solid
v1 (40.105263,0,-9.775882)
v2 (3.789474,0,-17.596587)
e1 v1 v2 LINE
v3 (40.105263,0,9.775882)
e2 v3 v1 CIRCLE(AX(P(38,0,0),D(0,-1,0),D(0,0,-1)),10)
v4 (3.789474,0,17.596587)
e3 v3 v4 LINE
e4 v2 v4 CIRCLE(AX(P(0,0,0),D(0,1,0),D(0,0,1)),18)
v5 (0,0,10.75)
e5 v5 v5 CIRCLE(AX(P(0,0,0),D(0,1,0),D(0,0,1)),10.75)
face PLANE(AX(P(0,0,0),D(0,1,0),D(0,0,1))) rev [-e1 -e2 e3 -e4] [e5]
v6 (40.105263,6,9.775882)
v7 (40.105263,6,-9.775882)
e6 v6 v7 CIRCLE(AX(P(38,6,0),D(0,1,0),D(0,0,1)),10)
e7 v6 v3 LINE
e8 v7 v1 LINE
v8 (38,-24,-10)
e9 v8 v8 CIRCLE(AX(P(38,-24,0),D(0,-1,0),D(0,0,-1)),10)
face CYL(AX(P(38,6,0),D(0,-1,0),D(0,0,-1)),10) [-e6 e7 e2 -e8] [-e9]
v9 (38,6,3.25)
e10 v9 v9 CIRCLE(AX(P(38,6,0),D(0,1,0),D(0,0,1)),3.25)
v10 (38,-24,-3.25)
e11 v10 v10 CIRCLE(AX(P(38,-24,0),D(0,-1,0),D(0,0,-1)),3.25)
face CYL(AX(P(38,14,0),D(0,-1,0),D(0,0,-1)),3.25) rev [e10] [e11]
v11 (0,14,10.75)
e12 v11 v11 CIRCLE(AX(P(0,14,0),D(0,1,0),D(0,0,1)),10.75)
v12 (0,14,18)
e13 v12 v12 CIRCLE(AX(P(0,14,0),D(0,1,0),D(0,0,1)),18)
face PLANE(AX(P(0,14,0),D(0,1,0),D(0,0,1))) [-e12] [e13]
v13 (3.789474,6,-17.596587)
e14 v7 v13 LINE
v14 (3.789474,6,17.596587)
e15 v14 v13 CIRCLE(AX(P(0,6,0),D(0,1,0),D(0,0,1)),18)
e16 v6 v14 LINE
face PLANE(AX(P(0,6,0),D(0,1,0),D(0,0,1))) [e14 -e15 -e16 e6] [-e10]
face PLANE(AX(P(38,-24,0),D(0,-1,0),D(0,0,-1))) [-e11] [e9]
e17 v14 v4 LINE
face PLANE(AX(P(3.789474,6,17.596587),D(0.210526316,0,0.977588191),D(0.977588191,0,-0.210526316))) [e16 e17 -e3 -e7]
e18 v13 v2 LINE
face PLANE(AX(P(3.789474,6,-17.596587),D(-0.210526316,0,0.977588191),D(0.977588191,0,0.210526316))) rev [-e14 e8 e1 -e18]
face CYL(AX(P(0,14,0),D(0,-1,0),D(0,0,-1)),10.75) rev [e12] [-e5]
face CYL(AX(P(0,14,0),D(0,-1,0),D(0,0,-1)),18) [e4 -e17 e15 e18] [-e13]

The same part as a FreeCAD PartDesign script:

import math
import FreeCAD as App
import Part
import Sketcher
Q = App.Units.Quantity

doc = App.newDocument("Part")
params = doc.addObject("Spreadsheet::Sheet", "Params")
for row, (alias, value) in enumerate([
    ("sketch1_diameter", "36 mm"),
    ("sketch1_diameter2", "21.5 mm"),
    ("pad1_length", "14 mm"),
    ("sketch2_radius", "10 mm"),
    ("sketch2_radius2", "18 mm"),
    ("pad2_length", "6 mm"),
    ("sketch3_diameter", "20 mm"),
    ("pad3_length", "24 mm"),
    ("sketch4_diameter", "6.5 mm"),
], start=1):
    params.set(f"A{row}", alias)
    params.set(f"B{row}", "=" + value)
    params.setAlias(f"B{row}", alias)

body = doc.addObject("PartDesign::Body", "Body")

# Sketch on XZ plane
sketch1 = body.newObject("Sketcher::SketchObject", "Sketch")
sketch1.AttachmentSupport = (doc.getObject("XZ_Plane"), [""])
sketch1.MapMode = "FlatFace"
sketch1.addGeometry([
    Part.Circle(App.Vector(0, 0, 0), App.Vector(0, 0, 1), 18),
    Part.Circle(App.Vector(0, 0, 0), App.Vector(0, 0, 1), 11),
], False)
sketch1.addConstraint([
    Sketcher.Constraint("Coincident", 0, 3, -1, 1),
    Sketcher.Constraint("Coincident", 1, 3, -1, 1),
    Sketcher.Constraint("Diameter", 0, Q("36 mm")),
    Sketcher.Constraint("Diameter", 1, Q("21.5 mm")),
])
sketch1.setExpression("Constraints[2]", "Params.sketch1_diameter")
sketch1.setExpression("Constraints[3]", "Params.sketch1_diameter2")
pad1 = body.newObject("PartDesign::Pad", "Pad")
pad1.Profile = sketch1
pad1.setExpression("Length", "Params.pad1_length")
pad1.Reversed = True

# Sketch on XZ plane
sketch2 = body.newObject("Sketcher::SketchObject", "Sketch001")
sketch2.AttachmentSupport = (doc.getObject("XZ_Plane"), [""])
sketch2.MapMode = "FlatFace"
sketch2.addGeometry([
    Part.ArcOfCircle(Part.Circle(App.Vector(38, 0, 0), App.Vector(0, 0, 1), 10), math.radians(-78), math.radians(78)),  # 0
    Part.LineSegment(App.Vector(40, -10, 0), App.Vector(4, -18, 0)),  # 1
    Part.ArcOfCircle(Part.Circle(App.Vector(0, 0, 0), App.Vector(0, 0, 1), 18), math.radians(-78), math.radians(0)),  # 2
    Part.ArcOfCircle(Part.Circle(App.Vector(0, 0, 0), App.Vector(0, 0, 1), 18), math.radians(0), math.radians(78)),  # 3
    Part.LineSegment(App.Vector(4, 18, 0), App.Vector(40, 10, 0)),  # 4
], False)
sketch2.addConstraint([
    Sketcher.Constraint("Tangent", 0, 1, 1, 1),
    Sketcher.Constraint("Tangent", 1, 2, 2, 1),
    Sketcher.Constraint("Tangent", 2, 2, 3, 1),
    Sketcher.Constraint("Tangent", 3, 2, 4, 1),
    Sketcher.Constraint("Tangent", 4, 2, 0, 2),
    Sketcher.Constraint("Coincident", 2, 3, -1, 1),
    Sketcher.Constraint("Equal", 2, 3),
    Sketcher.Constraint("PointOnObject", 0, 3, -1),
    Sketcher.Constraint("PointOnObject", 2, 2, -1),
    Sketcher.Constraint("Radius", 0, Q("10 mm")),
    Sketcher.Constraint("Radius", 2, Q("18 mm")),
    Sketcher.Constraint("DistanceX", -1, 1, 0, 3, Q("38 mm")),
])
sketch2.setExpression("Constraints[9]", "Params.sketch2_radius")
sketch2.setExpression("Constraints[10]", "Params.sketch2_radius2")
pad2 = body.newObject("PartDesign::Pad", "Pad001")
pad2.Profile = sketch2
pad2.setExpression("Length", "Params.pad2_length")
pad2.Reversed = True

# Sketch on XZ plane
sketch3 = body.newObject("Sketcher::SketchObject", "Sketch002")
sketch3.AttachmentSupport = (doc.getObject("XZ_Plane"), [""])
sketch3.MapMode = "FlatFace"
sketch3.AttachmentOffset = App.Placement(App.Vector(0, 0, 24), App.Rotation())
sketch3.addGeometry(Part.Circle(App.Vector(38, 0, 0), App.Vector(0, 0, 1), 10), False)
sketch3.addConstraint([
    Sketcher.Constraint("PointOnObject", 0, 3, -1),
    Sketcher.Constraint("Diameter", 0, Q("20 mm")),
    Sketcher.Constraint("DistanceX", -1, 1, 0, 3, Q("38 mm")),
])
sketch3.setExpression("Constraints[1]", "Params.sketch3_diameter")
pad3 = body.newObject("PartDesign::Pad", "Pad002")
pad3.Profile = sketch3
pad3.setExpression("Length", "Params.pad3_length")
pad3.Reversed = True

# Sketch on XZ plane
sketch4 = body.newObject("Sketcher::SketchObject", "Sketch003")
sketch4.AttachmentSupport = (doc.getObject("XZ_Plane"), [""])
sketch4.MapMode = "FlatFace"
sketch4.AttachmentOffset = App.Placement(App.Vector(0, 0, 24), App.Rotation())
sketch4.addGeometry(Part.Circle(App.Vector(38, 0, 0), App.Vector(0, 0, 1), 3.2), False)
sketch4.addConstraint([
    Sketcher.Constraint("PointOnObject", 0, 3, -1),
    Sketcher.Constraint("Diameter", 0, Q("6.5 mm")),
    Sketcher.Constraint("DistanceX", -1, 1, 0, 3, Q("38 mm")),
])
sketch4.setExpression("Constraints[1]", "Params.sketch4_diameter")
pocket1 = body.newObject("PartDesign::Pocket", "Pocket")
pocket1.Profile = sketch4
pocket1.Type = "ThroughAll"

doc.recompute()
